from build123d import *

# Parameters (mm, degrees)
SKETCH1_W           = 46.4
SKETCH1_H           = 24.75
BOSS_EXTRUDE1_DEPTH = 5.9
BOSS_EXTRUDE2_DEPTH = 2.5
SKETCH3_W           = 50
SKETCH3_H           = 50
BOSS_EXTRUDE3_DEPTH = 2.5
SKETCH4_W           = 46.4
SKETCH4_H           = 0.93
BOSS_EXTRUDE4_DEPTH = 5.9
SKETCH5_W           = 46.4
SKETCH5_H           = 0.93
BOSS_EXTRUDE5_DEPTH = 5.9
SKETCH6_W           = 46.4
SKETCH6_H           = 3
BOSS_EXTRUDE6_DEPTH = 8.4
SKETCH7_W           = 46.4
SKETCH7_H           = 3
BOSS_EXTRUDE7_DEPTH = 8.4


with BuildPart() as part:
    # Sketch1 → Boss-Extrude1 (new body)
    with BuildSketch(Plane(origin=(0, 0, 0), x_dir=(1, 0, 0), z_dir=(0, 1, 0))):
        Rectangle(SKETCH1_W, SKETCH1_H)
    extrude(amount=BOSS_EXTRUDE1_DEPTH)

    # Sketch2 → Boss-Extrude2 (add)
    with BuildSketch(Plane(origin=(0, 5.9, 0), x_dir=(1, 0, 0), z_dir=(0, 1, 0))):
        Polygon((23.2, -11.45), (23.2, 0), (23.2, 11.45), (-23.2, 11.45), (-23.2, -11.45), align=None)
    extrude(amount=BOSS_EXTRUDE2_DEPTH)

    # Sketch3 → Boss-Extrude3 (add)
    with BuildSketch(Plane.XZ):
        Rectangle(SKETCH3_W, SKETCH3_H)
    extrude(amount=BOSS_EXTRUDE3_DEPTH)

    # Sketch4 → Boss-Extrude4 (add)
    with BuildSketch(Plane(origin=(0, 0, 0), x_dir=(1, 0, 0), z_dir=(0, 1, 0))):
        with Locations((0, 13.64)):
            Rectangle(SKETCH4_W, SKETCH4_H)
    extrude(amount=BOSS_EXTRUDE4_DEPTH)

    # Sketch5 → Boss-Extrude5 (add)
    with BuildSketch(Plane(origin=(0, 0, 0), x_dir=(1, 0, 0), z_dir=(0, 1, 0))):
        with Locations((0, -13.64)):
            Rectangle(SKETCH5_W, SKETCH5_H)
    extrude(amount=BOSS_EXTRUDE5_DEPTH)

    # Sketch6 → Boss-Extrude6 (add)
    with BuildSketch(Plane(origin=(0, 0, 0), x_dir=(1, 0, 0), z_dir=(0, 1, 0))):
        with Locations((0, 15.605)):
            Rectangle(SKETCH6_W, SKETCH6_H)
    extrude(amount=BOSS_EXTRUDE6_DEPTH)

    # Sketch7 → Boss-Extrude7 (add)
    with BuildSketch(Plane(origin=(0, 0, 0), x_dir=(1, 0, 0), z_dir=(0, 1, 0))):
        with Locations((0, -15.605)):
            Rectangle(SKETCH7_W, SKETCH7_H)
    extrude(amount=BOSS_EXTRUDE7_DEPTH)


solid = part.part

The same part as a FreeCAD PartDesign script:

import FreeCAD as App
import Part
import Sketcher
from FreeCAD import Vector
Q = App.Units.Quantity


def add_polygon(sketch, points):
    """Adds a closed chain of lines whose ends are joined by coincident constraints."""
    first, n = sketch.GeometryCount, len(points)
    for a, b in zip(points, points[1:] + points[:1]):
        sketch.addGeometry(Part.LineSegment(App.Vector(*a, 0), App.Vector(*b, 0)), False)
    for i in range(n):
        sketch.addConstraint(Sketcher.Constraint("Coincident", first + i, 2, first + (i + 1) % n, 1))

doc = App.newDocument("Part")
body = doc.addObject("PartDesign::Body", "Body")

# Sketch on XZ plane
sketch1 = doc.addObject("Sketcher::SketchObject", "Sketch")
body.addObject(sketch1)
sketch1.AttachmentSupport = (doc.XZ_Plane, [""])
sketch1.MapMode = "FlatFace"
add_polygon(sketch1, [(-23, -12), (-23, 12), (23, 12), (23, -12)])  # lines 0-3
sketch1.addConstraint([
    Sketcher.Constraint("Vertical", 0),
    Sketcher.Constraint("Horizontal", 1),
    Sketcher.Constraint("Vertical", 2),
    Sketcher.Constraint("Horizontal", 3),
    Sketcher.Constraint("Symmetric", 0, 2, 2, 2, -1, 1),
    Sketcher.Constraint("DistanceX", 1, 1, 1, 2, Q("46.4 mm")),
    Sketcher.Constraint("DistanceY", 0, 1, 0, 2, Q("24.75 mm")),
])
pad1 = doc.addObject("PartDesign::Pad", "Pad")
body.addObject(pad1)
pad1.Profile = sketch1
pad1.Length = 5.9
pad1.Reversed = True

# Sketch on XZ plane
sketch2 = doc.addObject("Sketcher::SketchObject", "Sketch001")
body.addObject(sketch2)
sketch2.AttachmentSupport = (doc.XZ_Plane, [""])
sketch2.MapMode = "FlatFace"
sketch2.AttachmentOffset = App.Placement(Vector(0, 0, -5.9), App.Rotation())
add_polygon(sketch2, [(23, 11), (23, -11), (-23, -11), (-23, 11)])  # lines 0-3
sketch2.addConstraint([
    Sketcher.Constraint("Vertical", 0),
    Sketcher.Constraint("Horizontal", 1),
    Sketcher.Constraint("Vertical", 2),
    Sketcher.Constraint("Horizontal", 3),
    Sketcher.Constraint("Symmetric", 0, 2, 2, 2, -1, 1),
    Sketcher.Constraint("DistanceX", 1, 2, 1, 1, Q("46.4 mm")),
    Sketcher.Constraint("DistanceY", 0, 2, 0, 1, Q("22.9 mm")),
])
pad2 = doc.addObject("PartDesign::Pad", "Pad001")
body.addObject(pad2)
pad2.Profile = sketch2
pad2.Length = 2.5
pad2.Reversed = True

# Sketch on XZ plane
sketch3 = doc.addObject("Sketcher::SketchObject", "Sketch002")
body.addObject(sketch3)
sketch3.AttachmentSupport = (doc.XZ_Plane, [""])
sketch3.MapMode = "FlatFace"
add_polygon(sketch3, [(-25, 25), (-25, -25), (25, -25), (25, 25)])  # lines 0-3
sketch3.addConstraint([
    Sketcher.Constraint("Vertical", 0),
    Sketcher.Constraint("Horizontal", 1),
    Sketcher.Constraint("Vertical", 2),
    Sketcher.Constraint("Horizontal", 3),
    Sketcher.Constraint("Symmetric", 0, 2, 2, 2, -1, 1),
    Sketcher.Constraint("Equal", 3, 0),
    Sketcher.Constraint("DistanceX", 1, 1, 1, 2, Q("50 mm")),
])
pad3 = doc.addObject("PartDesign::Pad", "Pad002")
body.addObject(pad3)
pad3.Profile = sketch3
pad3.Length = 2.5

# Sketch on XZ plane
sketch4 = doc.addObject("Sketcher::SketchObject", "Sketch003")
body.addObject(sketch4)
sketch4.AttachmentSupport = (doc.XZ_Plane, [""])
sketch4.MapMode = "FlatFace"
add_polygon(sketch4, [(-23.2, -14.1), (-23.2, -13.2), (23.2, -13.2), (23.2, -14.1)])  # lines 0-3
sketch4.addConstraint([
    Sketcher.Constraint("Vertical", 0),
    Sketcher.Constraint("Horizontal", 1),
    Sketcher.Constraint("Vertical", 2),
    Sketcher.Constraint("Horizontal", 3),
    Sketcher.Constraint("DistanceX", 1, 1, 1, 2, Q("46.4 mm")),
    Sketcher.Constraint("DistanceY", 0, 1, 0, 2, Q("0.93 mm")),
    Sketcher.Constraint("DistanceX", 0, 2, -1, 1, Q("23.2 mm")),
    Sketcher.Constraint("DistanceY", 0, 2, -1, 1, Q("13.175 mm")),
])
pad4 = doc.addObject("PartDesign::Pad", "Pad003")
body.addObject(pad4)
pad4.Profile = sketch4
pad4.Length = 5.9
pad4.Reversed = True

# Sketch on XZ plane
sketch5 = doc.addObject("Sketcher::SketchObject", "Sketch004")
body.addObject(sketch5)
sketch5.AttachmentSupport = (doc.XZ_Plane, [""])
sketch5.MapMode = "FlatFace"
add_polygon(sketch5, [(-23.2, 13.2), (-23.2, 14.1), (23.2, 14.1), (23.2, 13.2)])  # lines 0-3
sketch5.addConstraint([
    Sketcher.Constraint("Vertical", 0),
    Sketcher.Constraint("Horizontal", 1),
    Sketcher.Constraint("Vertical", 2),
    Sketcher.Constraint("Horizontal", 3),
    Sketcher.Constraint("DistanceX", 1, 1, 1, 2, Q("46.4 mm")),
    Sketcher.Constraint("DistanceY", 0, 1, 0, 2, Q("0.93 mm")),
    Sketcher.Constraint("DistanceX", 0, 2, -1, 1, Q("23.2 mm")),
    Sketcher.Constraint("DistanceY", -1, 1, 0, 2, Q("14.105 mm")),
])
pad5 = doc.addObject("PartDesign::Pad", "Pad004")
body.addObject(pad5)
pad5.Profile = sketch5
pad5.Length = 5.9
pad5.Reversed = True

# Sketch on XZ plane
sketch6 = doc.addObject("Sketcher::SketchObject", "Sketch005")
body.addObject(sketch6)
sketch6.AttachmentSupport = (doc.XZ_Plane, [""])
sketch6.MapMode = "FlatFace"
add_polygon(sketch6, [(-23.2, -17.1), (-23.2, -14.1), (23.2, -14.1), (23.2, -17.1)])  # lines 0-3
sketch6.addConstraint([
    Sketcher.Constraint("Vertical", 0),
    Sketcher.Constraint("Horizontal", 1),
    Sketcher.Constraint("Vertical", 2),
    Sketcher.Constraint("Horizontal", 3),
    Sketcher.Constraint("DistanceY", 0, 1, 0, 2, Q("3 mm")),
    Sketcher.Constraint("DistanceX", 1, 1, 1, 2, Q("46.4 mm")),
    Sketcher.Constraint("DistanceX", 0, 2, -1, 1, Q("23.2 mm")),
    Sketcher.Constraint("DistanceY", 0, 2, -1, 1, Q("14.105 mm")),
])
pad6 = doc.addObject("PartDesign::Pad", "Pad005")
body.addObject(pad6)
pad6.Profile = sketch6
pad6.Length = 8.4
pad6.Reversed = True

# Sketch on XZ plane
sketch7 = doc.addObject("Sketcher::SketchObject", "Sketch006")
body.addObject(sketch7)
sketch7.AttachmentSupport = (doc.XZ_Plane, [""])
sketch7.MapMode = "FlatFace"
add_polygon(sketch7, [(-23.2, 14.1), (-23.2, 17.1), (23.2, 17.1), (23.2, 14.1)])  # lines 0-3
sketch7.addConstraint([
    Sketcher.Constraint("Vertical", 0),
    Sketcher.Constraint("Horizontal", 1),
    Sketcher.Constraint("Vertical", 2),
    Sketcher.Constraint("Horizontal", 3),
    Sketcher.Constraint("DistanceY", 0, 1, 0, 2, Q("3 mm")),
    Sketcher.Constraint("DistanceX", 1, 1, 1, 2, Q("46.4 mm")),
    Sketcher.Constraint("DistanceX", 0, 2, -1, 1, Q("23.2 mm")),
    Sketcher.Constraint("DistanceY", -1, 1, 0, 2, Q("17.105 mm")),
])
pad7 = doc.addObject("PartDesign::Pad", "Pad006")
body.addObject(pad7)
pad7.Profile = sketch7
pad7.Length = 8.4
pad7.Reversed = True

doc.recompute()
